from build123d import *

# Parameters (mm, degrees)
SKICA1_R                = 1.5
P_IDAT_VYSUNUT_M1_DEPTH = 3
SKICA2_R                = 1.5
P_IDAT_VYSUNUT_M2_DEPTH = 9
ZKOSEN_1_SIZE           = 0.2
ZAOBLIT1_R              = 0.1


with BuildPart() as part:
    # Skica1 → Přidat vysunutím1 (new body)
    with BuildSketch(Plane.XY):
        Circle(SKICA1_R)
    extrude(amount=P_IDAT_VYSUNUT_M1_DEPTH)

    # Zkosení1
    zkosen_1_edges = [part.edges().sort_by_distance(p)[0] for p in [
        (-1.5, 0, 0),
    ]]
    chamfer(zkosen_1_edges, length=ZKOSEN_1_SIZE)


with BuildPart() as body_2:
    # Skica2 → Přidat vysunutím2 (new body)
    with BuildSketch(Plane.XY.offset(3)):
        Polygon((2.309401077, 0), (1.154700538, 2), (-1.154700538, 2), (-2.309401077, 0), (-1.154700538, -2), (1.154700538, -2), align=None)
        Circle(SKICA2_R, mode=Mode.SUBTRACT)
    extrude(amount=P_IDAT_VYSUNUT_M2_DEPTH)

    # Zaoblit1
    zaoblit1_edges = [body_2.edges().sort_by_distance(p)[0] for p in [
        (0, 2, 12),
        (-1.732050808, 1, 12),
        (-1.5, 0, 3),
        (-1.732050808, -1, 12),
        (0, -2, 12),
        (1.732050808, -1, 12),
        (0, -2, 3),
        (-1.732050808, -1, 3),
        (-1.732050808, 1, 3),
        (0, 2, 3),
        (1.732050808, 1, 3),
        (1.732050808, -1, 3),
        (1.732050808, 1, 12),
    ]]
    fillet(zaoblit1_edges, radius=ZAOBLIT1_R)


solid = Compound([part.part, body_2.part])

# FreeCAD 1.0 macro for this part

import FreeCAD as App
import Part
import Sketcher

V = App.Vector
Q = App.Units.Quantity


def edges_at(feature, points):
    """Names of the edges that pass closest to the given points."""
    edges = feature.Shape.Edges
    near = lambda p: min(range(len(edges)), key=lambda i: edges[i].distToShape(Part.Vertex(*p))[0])
    return sorted({f"Edge{near(p) + 1}" for p in points})


def add_polygon(sketch, points):
    """Adds a closed chain of lines whose ends are joined by coincident constraints."""
    first, n = sketch.GeometryCount, len(points)
    for a, b in zip(points, points[1:] + points[:1]):
        sketch.addGeometry(Part.LineSegment(App.Vector(*a, 0), App.Vector(*b, 0)), False)
    for i in range(n):
        sketch.addConstraint(Sketcher.Constraint("Coincident", first + i, 2, first + (i + 1) % n, 1))

doc = App.newDocument("Part")
body = doc.addObject("PartDesign::Body", "Body")

# Sketch on XY plane
sketch1 = doc.addObject("Sketcher::SketchObject", "Sketch")
body.addObject(sketch1)
sketch1.AttachmentSupport = (doc.XY_Plane, [""])
sketch1.MapMode = "FlatFace"
sketch1.addGeometry(Part.Circle(V(0, 0, 0), V(0, 0, 1), 1.5), False)
sketch1.addConstraint([
    Sketcher.Constraint("Coincident", 0, 3, -1, 1),
    Sketcher.Constraint("Diameter", 0, 3.0),
])
pad1 = doc.addObject("PartDesign::Pad", "Pad")
body.addObject(pad1)
pad1.Profile = sketch1
pad1.Length = 3
doc.recompute()

chamfer = doc.addObject("PartDesign::Chamfer", "Chamfer")
body.addObject(chamfer)
chamfer.Base = (pad1, edges_at(pad1, [(-1.5, 0, 0)]))
chamfer.Size = 0.2
body2 = doc.addObject("PartDesign::Body", "Body001")

# Sketch on XY plane
sketch2 = doc.addObject("Sketcher::SketchObject", "Sketch001")
body2.addObject(sketch2)
sketch2.AttachmentSupport = (doc.getObject("XY_Plane001"), [""])
sketch2.MapMode = "FlatFace"
sketch2.AttachmentOffset = App.Placement(V(0, 0, 3), App.Rotation())
add_polygon(sketch2, [(2.3, 0), (1.2, 2), (-1.2, 2), (-2.3, 0), (-1.2, -2), (1.2, -2)])  # lines 0-5
sketch2.addGeometry(Part.Circle(V(0, 0, 0), V(0, 0, 1), 1.5), False)  # 6
sketch2.addConstraint([
    Sketcher.Constraint("Horizontal", 1),
    Sketcher.Constraint("Horizontal", 4),
    Sketcher.Constraint("Coincident", 6, 3, -1, 1),
    Sketcher.Constraint("Symmetric", 0, 2, 3, 2, -1, 1),
    Sketcher.Constraint("Symmetric", 2, 2, 5, 2, -1, 1),
    Sketcher.Constraint("PointOnObject", 2, 2, -1),
    Sketcher.Constraint("Parallel", 2, 5),
    Sketcher.Constraint("Vertical", 1, 2, 3, 2),
    Sketcher.Constraint("Diameter", 6, 3.0),
    Sketcher.Constraint("Angle", 0, Q("120 deg")),
    Sketcher.Constraint("DistanceY", -1, 1, 0, 2, 2.0),
    Sketcher.Constraint("DistanceX", 1, 2, 1, 1, 2.309401),
])
pad2 = doc.addObject("PartDesign::Pad", "Pad001")
body2.addObject(pad2)
pad2.Profile = sketch2
pad2.Length = 9
doc.recompute()

fillet = doc.addObject("PartDesign::Fillet", "Fillet")
body2.addObject(fillet)
fillet.Base = (pad2, edges_at(pad2, [
    (0, 2, 12),
    (-1.732, 1, 12),
    (-1.5, 0, 3),
    (-1.732, -1, 12),
    (0, -2, 12),
    (1.732, -1, 12),
    (0, -2, 3),
    (-1.732, -1, 3),
    (-1.732, 1, 3),
    (0, 2, 3),
    (1.732, 1, 3),
    (1.732, -1, 3),
    (1.732, 1, 12),
]))
fillet.Radius = 0.1

doc.recompute()
